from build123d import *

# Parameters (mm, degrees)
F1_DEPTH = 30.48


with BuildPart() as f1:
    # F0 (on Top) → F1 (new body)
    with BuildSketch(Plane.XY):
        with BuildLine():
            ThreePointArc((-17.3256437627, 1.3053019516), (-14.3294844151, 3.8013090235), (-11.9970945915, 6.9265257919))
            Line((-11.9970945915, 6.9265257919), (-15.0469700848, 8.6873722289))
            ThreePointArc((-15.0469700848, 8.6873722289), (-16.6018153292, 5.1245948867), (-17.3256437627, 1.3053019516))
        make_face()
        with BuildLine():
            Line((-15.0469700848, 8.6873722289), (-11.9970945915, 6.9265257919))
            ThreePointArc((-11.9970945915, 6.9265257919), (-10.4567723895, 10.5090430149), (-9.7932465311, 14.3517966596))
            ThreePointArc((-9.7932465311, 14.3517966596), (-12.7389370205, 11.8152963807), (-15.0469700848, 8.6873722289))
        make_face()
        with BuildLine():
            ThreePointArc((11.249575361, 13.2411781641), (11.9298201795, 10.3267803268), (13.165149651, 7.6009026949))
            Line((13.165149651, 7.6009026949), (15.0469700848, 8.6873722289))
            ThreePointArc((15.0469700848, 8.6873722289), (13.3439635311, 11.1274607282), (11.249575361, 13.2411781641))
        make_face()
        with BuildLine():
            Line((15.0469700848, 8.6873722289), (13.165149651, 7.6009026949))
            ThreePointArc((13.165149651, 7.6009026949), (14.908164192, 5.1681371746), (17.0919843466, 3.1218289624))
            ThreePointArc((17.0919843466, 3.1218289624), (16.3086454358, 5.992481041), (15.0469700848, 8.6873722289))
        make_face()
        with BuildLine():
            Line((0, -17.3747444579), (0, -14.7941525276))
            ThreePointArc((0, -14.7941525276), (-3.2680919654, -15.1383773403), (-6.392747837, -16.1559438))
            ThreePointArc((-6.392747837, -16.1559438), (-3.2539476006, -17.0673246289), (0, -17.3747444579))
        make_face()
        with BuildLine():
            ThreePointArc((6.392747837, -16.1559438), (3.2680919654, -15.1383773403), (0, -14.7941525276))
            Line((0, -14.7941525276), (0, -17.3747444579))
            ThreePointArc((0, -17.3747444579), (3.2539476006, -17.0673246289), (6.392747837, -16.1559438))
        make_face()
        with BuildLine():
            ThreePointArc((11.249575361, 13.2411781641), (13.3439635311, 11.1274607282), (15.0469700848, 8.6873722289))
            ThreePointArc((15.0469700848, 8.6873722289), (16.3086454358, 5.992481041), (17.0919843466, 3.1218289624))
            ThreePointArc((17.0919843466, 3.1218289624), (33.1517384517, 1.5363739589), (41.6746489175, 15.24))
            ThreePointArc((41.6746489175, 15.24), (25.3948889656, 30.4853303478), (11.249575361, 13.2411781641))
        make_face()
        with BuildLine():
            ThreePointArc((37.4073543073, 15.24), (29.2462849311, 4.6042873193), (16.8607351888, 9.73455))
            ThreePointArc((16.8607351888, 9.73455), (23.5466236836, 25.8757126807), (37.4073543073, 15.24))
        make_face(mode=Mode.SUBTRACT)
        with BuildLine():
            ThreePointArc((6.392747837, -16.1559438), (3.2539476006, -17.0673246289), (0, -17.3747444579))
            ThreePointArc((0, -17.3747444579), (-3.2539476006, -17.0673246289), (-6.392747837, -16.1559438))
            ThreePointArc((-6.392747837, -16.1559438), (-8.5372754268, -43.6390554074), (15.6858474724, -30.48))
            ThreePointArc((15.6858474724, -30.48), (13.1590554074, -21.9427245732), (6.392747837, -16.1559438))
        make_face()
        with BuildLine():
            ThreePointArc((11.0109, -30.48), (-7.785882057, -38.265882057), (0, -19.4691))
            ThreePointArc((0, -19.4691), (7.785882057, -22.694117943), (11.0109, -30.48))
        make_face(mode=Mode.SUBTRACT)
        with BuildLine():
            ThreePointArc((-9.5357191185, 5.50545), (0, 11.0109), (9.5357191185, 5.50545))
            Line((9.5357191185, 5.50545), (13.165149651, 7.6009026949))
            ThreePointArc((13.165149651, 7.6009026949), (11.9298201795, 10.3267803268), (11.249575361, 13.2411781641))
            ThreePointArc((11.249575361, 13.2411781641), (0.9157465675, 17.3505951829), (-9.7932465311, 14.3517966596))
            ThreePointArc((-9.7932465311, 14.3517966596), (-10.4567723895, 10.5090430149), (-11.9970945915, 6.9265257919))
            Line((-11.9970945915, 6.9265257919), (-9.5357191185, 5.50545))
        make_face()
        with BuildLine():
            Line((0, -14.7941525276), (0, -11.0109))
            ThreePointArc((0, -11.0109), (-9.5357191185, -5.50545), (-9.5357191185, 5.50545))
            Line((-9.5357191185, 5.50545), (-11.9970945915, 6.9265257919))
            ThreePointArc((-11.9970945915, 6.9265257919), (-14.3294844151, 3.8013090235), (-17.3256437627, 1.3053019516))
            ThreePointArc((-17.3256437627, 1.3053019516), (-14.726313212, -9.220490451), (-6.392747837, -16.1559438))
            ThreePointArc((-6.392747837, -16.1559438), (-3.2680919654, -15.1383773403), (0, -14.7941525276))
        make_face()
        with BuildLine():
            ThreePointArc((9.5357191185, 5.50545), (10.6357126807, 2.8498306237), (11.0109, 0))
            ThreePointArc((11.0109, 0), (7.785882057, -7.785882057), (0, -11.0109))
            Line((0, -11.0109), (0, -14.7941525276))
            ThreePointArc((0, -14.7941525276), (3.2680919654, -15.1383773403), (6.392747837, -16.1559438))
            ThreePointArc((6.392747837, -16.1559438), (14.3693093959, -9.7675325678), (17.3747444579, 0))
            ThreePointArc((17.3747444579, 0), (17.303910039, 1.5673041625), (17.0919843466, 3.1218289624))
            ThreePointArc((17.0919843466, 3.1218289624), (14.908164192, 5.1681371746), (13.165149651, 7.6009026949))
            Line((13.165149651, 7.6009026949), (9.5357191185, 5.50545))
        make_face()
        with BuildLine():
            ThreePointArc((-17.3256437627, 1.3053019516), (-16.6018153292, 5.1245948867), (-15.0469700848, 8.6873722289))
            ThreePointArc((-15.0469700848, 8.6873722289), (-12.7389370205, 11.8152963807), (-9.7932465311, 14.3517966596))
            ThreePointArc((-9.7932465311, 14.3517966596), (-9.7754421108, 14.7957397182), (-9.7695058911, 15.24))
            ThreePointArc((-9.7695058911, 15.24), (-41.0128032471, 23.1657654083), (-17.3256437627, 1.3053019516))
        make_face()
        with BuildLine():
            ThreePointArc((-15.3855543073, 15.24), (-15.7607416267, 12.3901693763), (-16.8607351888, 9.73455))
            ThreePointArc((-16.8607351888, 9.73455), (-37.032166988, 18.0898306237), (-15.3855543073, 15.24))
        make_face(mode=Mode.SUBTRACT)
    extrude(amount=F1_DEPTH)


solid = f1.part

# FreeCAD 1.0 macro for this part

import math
import FreeCAD as App
import Part
import Sketcher
Q = App.Units.Quantity

doc = App.newDocument("Part")
body = doc.addObject("PartDesign::Body", "Body")

# Sketch on XY plane
sketch1 = body.newObject("Sketcher::SketchObject", "Sketch")
sketch1.AttachmentSupport = (doc.getObject("XY_Plane"), [""])
sketch1.MapMode = "FlatFace"
sketch1.addGeometry([
    Part.ArcOfCircle(Part.Circle(App.Vector(26.4, 15.2, 0), App.Vector(0, 0, 1), 15.3), math.radians(-128), math.radians(0)),  # 0
    Part.ArcOfCircle(Part.Circle(App.Vector(26.4, 15.2, 0), App.Vector(0, 0, 1), 15.3), math.radians(0), math.radians(188)),  # 1
    Part.ArcOfCircle(Part.Circle(App.Vector(0, 0, 0), App.Vector(0, 0, 1), 17.4), math.radians(50), math.radians(124)),  # 2
    Part.ArcOfCircle(Part.Circle(App.Vector(-26.4, 15.2, 0), App.Vector(0, 0, 1), 16.6), math.radians(-3.06), math.radians(0)),  # 3
    Part.ArcOfCircle(Part.Circle(App.Vector(-26.4, 15.2, 0), App.Vector(0, 0, 1), 16.6), math.radians(0), math.radians(303)),  # 4
    Part.ArcOfCircle(Part.Circle(App.Vector(0, 0, 0), App.Vector(0, 0, 1), 17.4), math.radians(176), math.radians(248)),  # 5
    Part.ArcOfCircle(Part.Circle(App.Vector(0, -30.5, 0), App.Vector(0, 0, 1), 15.7), math.radians(114), math.radians(360)),  # 6
    Part.ArcOfCircle(Part.Circle(App.Vector(0, -30.5, 0), App.Vector(0, 0, 1), 15.7), math.radians(0), math.radians(66)),  # 7
    Part.ArcOfCircle(Part.Circle(App.Vector(0, 0, 0), App.Vector(0, 0, 1), 17.4), math.radians(-68), math.radians(0)),  # 8
    Part.ArcOfCircle(Part.Circle(App.Vector(0, 0, 0), App.Vector(0, 0, 1), 17.4), math.radians(0), math.radians(10.35)),  # 9
    Part.ArcOfCircle(Part.Circle(App.Vector(0, -30.5, 0), App.Vector(0, 0, 1), 11), math.radians(90), math.radians(360)),  # 10
    Part.ArcOfCircle(Part.Circle(App.Vector(0, -30.5, 0), App.Vector(0, 0, 1), 11), math.radians(0), math.radians(90)),  # 11
    Part.ArcOfCircle(Part.Circle(App.Vector(-26.4, 15.2, 0), App.Vector(0, 0, 1), 11), math.radians(0), math.radians(330)),  # 12
    Part.ArcOfCircle(Part.Circle(App.Vector(-26.4, 15.2, 0), App.Vector(0, 0, 1), 11), math.radians(-30), math.radians(0)),  # 13
    Part.ArcOfCircle(Part.Circle(App.Vector(0, 0, 0), App.Vector(0, 0, 1), 11), math.radians(30), math.radians(150)),  # 14
    Part.ArcOfCircle(Part.Circle(App.Vector(0, 0, 0), App.Vector(0, 0, 1), 11), math.radians(0), math.radians(30)),  # 15
    Part.ArcOfCircle(Part.Circle(App.Vector(0, 0, 0), App.Vector(0, 0, 1), 11), math.radians(-90), math.radians(0)),  # 16
    Part.ArcOfCircle(Part.Circle(App.Vector(0, 0, 0), App.Vector(0, 0, 1), 11), math.radians(150), math.radians(270)),  # 17
    Part.ArcOfCircle(Part.Circle(App.Vector(26.4, 15.2, 0), App.Vector(0, 0, 1), 11), math.radians(-150), math.radians(0)),  # 18
    Part.ArcOfCircle(Part.Circle(App.Vector(26.4, 15.2, 0), App.Vector(0, 0, 1), 11), math.radians(0), math.radians(210)),  # 19
], False)
sketch1.addConstraint([
    Sketcher.Constraint("Tangent", 0, 2, 1, 1),
    Sketcher.Constraint("Coincident", 1, 2, 2, 1),
    Sketcher.Constraint("Coincident", 2, 2, 3, 1),
    Sketcher.Constraint("Tangent", 3, 2, 4, 1),
    Sketcher.Constraint("Coincident", 4, 2, 5, 1),
    Sketcher.Constraint("Coincident", 5, 2, 6, 1),
    Sketcher.Constraint("Tangent", 6, 2, 7, 1),
    Sketcher.Constraint("Coincident", 7, 2, 8, 1),
    Sketcher.Constraint("Tangent", 8, 2, 9, 1),
    Sketcher.Constraint("Coincident", 9, 2, 0, 1),
    Sketcher.Constraint("Tangent", 10, 1, 11, 2),
    Sketcher.Constraint("Coincident", 11, 1, 10, 2),
    Sketcher.Constraint("Tangent", 12, 1, 13, 2),
    Sketcher.Constraint("Coincident", 13, 1, 12, 2),
    Sketcher.Constraint("Tangent", 14, 1, 15, 2),
    Sketcher.Constraint("Tangent", 15, 1, 16, 2),
    Sketcher.Constraint("Tangent", 16, 1, 17, 2),
    Sketcher.Constraint("Tangent", 17, 1, 14, 2),
    Sketcher.Constraint("Tangent", 18, 1, 19, 2),
    Sketcher.Constraint("Coincident", 19, 1, 18, 2),
    Sketcher.Constraint("Coincident", 2, 3, -1, 1),
    Sketcher.Constraint("Coincident", 5, 3, -1, 1),
    Sketcher.Constraint("Coincident", 8, 3, -1, 1),
    Sketcher.Constraint("Coincident", 14, 3, -1, 1),
    Sketcher.Constraint("Coincident", 10, 3, 6, 3),
    Sketcher.Constraint("Coincident", 12, 3, 3, 3),
    Sketcher.Constraint("Coincident", 18, 3, 0, 3),
    Sketcher.Constraint("Equal", 0, 1),
    Sketcher.Constraint("Equal", 3, 4),
    Sketcher.Constraint("Equal", 2, 5),
    Sketcher.Constraint("Equal", 6, 7),
    Sketcher.Constraint("Equal", 5, 8),
    Sketcher.Constraint("Equal", 8, 9),
    Sketcher.Constraint("Equal", 11, 12),
    Sketcher.Constraint("Equal", 13, 14),
    Sketcher.Constraint("Equal", 14, 15),
    Sketcher.Constraint("Equal", 17, 18),
    Sketcher.Constraint("Symmetric", 0, 3, 3, 3, -2),
    Sketcher.Constraint("PointOnObject", 6, 3, -2),
    Sketcher.Constraint("PointOnObject", 8, 2, -1),
    Sketcher.Constraint("PointOnObject", 10, 1, -2),
    Sketcher.Constraint("PointOnObject", 15, 1, -1),
    Sketcher.Constraint("PointOnObject", 16, 1, -2),
    Sketcher.Constraint("Horizontal", 19, 3, 0, 2),
    Sketcher.Constraint("Horizontal", 0, 2, 3, 2),
    Sketcher.Constraint("Horizontal", 11, 3, 6, 2),
    Sketcher.Constraint("Horizontal", 6, 2, 11, 1),
    Sketcher.Constraint("Horizontal", 3, 2, 12, 1),
    Sketcher.Constraint("Horizontal", 14, 1, 17, 1),
    Sketcher.Constraint("Horizontal", 13, 1, 18, 1),
    Sketcher.Constraint("Horizontal", 12, 1, 19, 1),
    Sketcher.Constraint("DistanceY", -1, 1, 0, 3, Q("0.6 in")),
    Sketcher.Constraint("DistanceY", 6, 3, -1, 1, Q("1.2 in")),
    Sketcher.Constraint("Radius", 10, Q("0.4335 in")),
    Sketcher.Constraint("Radius", 3, Q("16.626948 mm")),
    Sketcher.Constraint("Radius", 0, Q("15.278195 mm")),
    Sketcher.Constraint("Radius", 2, Q("17.374744 mm")),
    Sketcher.Constraint("Radius", 6, Q("15.685847 mm")),
    Sketcher.Constraint("DistanceY", 17, 1, 13, 1, Q("0.1665 in")),
    Sketcher.Constraint("DistanceY", -1, 1, 4, 2, Q("1.305302 mm")),
    Sketcher.Constraint("DistanceY", -1, 1, 13, 1, Q("9.73455 mm")),
])
pad1 = body.newObject("PartDesign::Pad", "Pad")
pad1.Profile = sketch1
pad1.Length = Q("1.2 in")

doc.recompute()
